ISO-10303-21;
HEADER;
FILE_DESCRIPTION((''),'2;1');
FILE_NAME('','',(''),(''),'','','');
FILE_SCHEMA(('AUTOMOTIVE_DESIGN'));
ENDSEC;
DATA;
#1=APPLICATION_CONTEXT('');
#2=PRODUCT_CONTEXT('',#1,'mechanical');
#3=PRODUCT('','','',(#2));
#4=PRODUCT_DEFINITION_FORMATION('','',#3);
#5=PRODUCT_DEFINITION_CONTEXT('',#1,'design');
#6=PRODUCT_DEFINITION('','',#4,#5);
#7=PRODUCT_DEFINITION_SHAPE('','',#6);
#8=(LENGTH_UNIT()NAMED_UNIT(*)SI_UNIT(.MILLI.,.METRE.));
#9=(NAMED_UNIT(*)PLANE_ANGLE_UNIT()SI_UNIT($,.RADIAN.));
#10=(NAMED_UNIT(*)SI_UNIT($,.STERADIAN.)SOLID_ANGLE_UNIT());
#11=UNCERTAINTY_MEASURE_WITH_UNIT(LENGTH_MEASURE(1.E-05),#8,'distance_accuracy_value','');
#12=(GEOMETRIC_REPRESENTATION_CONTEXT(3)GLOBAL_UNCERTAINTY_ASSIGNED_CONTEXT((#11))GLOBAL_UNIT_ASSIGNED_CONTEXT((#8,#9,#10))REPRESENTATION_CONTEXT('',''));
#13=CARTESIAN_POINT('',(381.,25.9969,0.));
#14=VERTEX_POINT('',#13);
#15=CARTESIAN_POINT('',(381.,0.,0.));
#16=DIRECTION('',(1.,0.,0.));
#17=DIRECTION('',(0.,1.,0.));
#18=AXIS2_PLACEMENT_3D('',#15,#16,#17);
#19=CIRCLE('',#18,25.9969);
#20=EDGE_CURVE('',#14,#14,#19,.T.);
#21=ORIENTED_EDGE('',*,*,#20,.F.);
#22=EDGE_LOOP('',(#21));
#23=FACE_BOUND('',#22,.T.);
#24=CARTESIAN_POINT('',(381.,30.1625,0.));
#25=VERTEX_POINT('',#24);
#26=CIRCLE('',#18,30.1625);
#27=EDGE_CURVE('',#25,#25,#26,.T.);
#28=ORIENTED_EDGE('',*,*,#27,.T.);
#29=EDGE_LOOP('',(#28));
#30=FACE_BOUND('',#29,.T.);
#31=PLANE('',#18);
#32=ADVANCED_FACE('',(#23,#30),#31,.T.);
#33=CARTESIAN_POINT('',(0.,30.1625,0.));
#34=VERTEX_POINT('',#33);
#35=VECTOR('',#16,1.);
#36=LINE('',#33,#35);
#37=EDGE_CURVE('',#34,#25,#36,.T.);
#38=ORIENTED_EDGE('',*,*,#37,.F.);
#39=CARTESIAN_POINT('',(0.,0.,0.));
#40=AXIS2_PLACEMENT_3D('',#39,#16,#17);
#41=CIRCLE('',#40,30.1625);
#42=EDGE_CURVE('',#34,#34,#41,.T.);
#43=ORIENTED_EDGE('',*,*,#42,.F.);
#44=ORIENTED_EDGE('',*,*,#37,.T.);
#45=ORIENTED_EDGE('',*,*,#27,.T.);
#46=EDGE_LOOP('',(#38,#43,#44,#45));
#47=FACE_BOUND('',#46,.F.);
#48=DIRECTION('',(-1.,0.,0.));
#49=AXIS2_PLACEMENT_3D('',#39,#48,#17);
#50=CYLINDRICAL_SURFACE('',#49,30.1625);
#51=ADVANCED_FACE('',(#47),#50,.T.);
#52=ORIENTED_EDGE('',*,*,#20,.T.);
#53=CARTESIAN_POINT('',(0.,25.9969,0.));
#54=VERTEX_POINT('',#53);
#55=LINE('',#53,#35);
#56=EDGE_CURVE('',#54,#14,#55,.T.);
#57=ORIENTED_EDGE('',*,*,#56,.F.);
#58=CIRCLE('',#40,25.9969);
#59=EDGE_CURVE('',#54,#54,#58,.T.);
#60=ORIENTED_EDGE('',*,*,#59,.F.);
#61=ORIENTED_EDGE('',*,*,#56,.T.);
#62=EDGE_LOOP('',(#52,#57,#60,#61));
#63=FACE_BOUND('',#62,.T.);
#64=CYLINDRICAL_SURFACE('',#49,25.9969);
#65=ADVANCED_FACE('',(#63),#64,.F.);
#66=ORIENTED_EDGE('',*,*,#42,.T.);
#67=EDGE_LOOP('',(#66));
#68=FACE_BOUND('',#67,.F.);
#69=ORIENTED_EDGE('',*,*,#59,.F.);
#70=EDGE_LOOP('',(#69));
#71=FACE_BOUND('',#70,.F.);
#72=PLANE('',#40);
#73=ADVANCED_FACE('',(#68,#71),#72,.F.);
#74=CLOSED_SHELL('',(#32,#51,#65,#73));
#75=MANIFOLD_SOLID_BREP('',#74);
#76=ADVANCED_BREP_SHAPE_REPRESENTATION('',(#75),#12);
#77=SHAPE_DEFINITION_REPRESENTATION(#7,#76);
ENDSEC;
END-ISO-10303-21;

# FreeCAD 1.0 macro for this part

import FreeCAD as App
import Part
import Sketcher
from FreeCAD import Vector
Q = App.Units.Quantity

doc = App.newDocument("Part")
body = doc.addObject("PartDesign::Body", "Body")

sketch1 = doc.addObject("Sketcher::SketchObject", "Sketch")
body.addObject(sketch1)
sketch1.AttachmentSupport = (doc.YZ_Plane, [""])
sketch1.MapMode = "FlatFace"
sketch1.addGeometry([
    Part.Circle(Vector(0, 0, 0), Vector(0, 0, 1), 30.1625),
    Part.Circle(Vector(0, 0, 0), Vector(0, 0, 1), 25.9969),
], False)
sketch1.addConstraint([
    Sketcher.Constraint("Coincident", 0, 3, -1, 1),
    Sketcher.Constraint("Coincident", 1, 3, -1, 1),
    Sketcher.Constraint("Diameter", 0, Q("2.375 in")),
    Sketcher.Constraint("Diameter", 1, Q("2.047 in")),
])
pad1 = doc.addObject("PartDesign::Pad", "Pad")
body.addObject(pad1)
pad1.Profile = sketch1
pad1.Length = Q("15 in")

doc.recompute()
